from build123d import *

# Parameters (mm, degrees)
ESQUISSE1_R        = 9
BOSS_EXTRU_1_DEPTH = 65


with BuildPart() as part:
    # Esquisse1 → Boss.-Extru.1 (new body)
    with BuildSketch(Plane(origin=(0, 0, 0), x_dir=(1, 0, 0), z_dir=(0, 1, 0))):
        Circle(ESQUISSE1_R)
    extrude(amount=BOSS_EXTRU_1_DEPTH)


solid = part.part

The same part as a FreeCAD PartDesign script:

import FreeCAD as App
import Part
import Sketcher

doc = App.newDocument("Part")
body = doc.addObject("PartDesign::Body", "Body")

sketch1 = doc.addObject("Sketcher::SketchObject", "Sketch")
body.addObject(sketch1)
sketch1.AttachmentSupport = (doc.XZ_Plane, [""])
sketch1.MapMode = "FlatFace"
sketch1.addGeometry(Part.Circle(App.Vector(0, 0, 0), App.Vector(0, 0, 1), 9), False)
sketch1.addConstraint(Sketcher.Constraint("Coincident", 0, 3, -1, 1))
sketch1.addConstraint(Sketcher.Constraint("Diameter", 0, 18.0))
pad1 = doc.addObject("PartDesign::Pad", "Pad")
body.addObject(pad1)
pad1.Profile = sketch1
pad1.Length = 65
pad1.Reversed = True

doc.recompute()
